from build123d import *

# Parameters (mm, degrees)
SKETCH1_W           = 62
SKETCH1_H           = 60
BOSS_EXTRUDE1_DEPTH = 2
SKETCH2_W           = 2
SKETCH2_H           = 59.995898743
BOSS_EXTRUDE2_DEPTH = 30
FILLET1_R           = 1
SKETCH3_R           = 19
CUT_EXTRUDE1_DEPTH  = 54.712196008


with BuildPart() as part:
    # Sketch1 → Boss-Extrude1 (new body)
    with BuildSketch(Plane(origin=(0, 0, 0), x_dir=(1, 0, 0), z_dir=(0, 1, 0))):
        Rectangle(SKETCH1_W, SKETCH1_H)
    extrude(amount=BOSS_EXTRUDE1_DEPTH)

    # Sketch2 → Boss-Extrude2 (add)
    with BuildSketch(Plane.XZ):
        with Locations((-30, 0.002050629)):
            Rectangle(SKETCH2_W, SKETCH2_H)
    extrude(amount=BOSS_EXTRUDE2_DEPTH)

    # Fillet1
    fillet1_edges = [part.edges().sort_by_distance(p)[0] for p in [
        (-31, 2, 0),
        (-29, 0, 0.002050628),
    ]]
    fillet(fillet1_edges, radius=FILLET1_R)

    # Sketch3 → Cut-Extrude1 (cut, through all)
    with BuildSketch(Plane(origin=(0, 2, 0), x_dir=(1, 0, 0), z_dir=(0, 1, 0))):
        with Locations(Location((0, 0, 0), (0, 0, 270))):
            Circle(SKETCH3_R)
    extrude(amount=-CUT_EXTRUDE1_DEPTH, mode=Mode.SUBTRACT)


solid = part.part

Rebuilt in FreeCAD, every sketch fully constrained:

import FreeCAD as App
import Part
import Sketcher
from FreeCAD import Vector


def edges_at(feature, points):
    """Names of the edges that pass closest to the given points."""
    edges = feature.Shape.Edges
    near = lambda p: min(range(len(edges)), key=lambda i: edges[i].distToShape(Part.Vertex(*p))[0])
    return sorted({f"Edge{near(p) + 1}" for p in points})

doc = App.newDocument("Part")
body = doc.addObject("PartDesign::Body", "Body")

# Sketch on XZ plane
sketch1 = doc.addObject("Sketcher::SketchObject", "Sketch")
body.addObject(sketch1)
sketch1.AttachmentSupport = (doc.XZ_Plane, [""])
sketch1.MapMode = "FlatFace"
sketch1.addGeometry([
    Part.LineSegment(Vector(-31, -30, 0), Vector(-31, 30, 0)),
    Part.LineSegment(Vector(-31, 30, 0), Vector(31, 30, 0)),
    Part.LineSegment(Vector(31, 30, 0), Vector(31, -30, 0)),
    Part.LineSegment(Vector(31, -30, 0), Vector(-31, -30, 0)),
], False)
sketch1.addConstraint([
    Sketcher.Constraint("Coincident", 0, 2, 1, 1),
    Sketcher.Constraint("Coincident", 1, 2, 2, 1),
    Sketcher.Constraint("Coincident", 2, 2, 3, 1),
    Sketcher.Constraint("Coincident", 3, 2, 0, 1),
    Sketcher.Constraint("Vertical", 0),
    Sketcher.Constraint("Horizontal", 1),
    Sketcher.Constraint("Vertical", 2),
    Sketcher.Constraint("Horizontal", 3),
    Sketcher.Constraint("Symmetric", 0, 2, 2, 2, -1, 1),
    Sketcher.Constraint("DistanceX", 1, 1, 1, 2, 62.0),
    Sketcher.Constraint("DistanceY", 0, 1, 0, 2, 60.0),
])
pad1 = doc.addObject("PartDesign::Pad", "Pad")
body.addObject(pad1)
pad1.Profile = sketch1
pad1.Length = 2
pad1.Reversed = True

# Sketch on XZ plane
sketch2 = doc.addObject("Sketcher::SketchObject", "Sketch001")
body.addObject(sketch2)
sketch2.AttachmentSupport = (doc.XZ_Plane, [""])
sketch2.MapMode = "FlatFace"
sketch2.addGeometry([
    Part.LineSegment(Vector(-31, 30, 0), Vector(-31, -30, 0)),
    Part.LineSegment(Vector(-31, -30, 0), Vector(-29, -30, 0)),
    Part.LineSegment(Vector(-29, -30, 0), Vector(-29, 30, 0)),
    Part.LineSegment(Vector(-29, 30, 0), Vector(-31, 30, 0)),
], False)
sketch2.addConstraint([
    Sketcher.Constraint("Coincident", 0, 2, 1, 1),
    Sketcher.Constraint("Coincident", 1, 2, 2, 1),
    Sketcher.Constraint("Coincident", 2, 2, 3, 1),
    Sketcher.Constraint("Coincident", 3, 2, 0, 1),
    Sketcher.Constraint("Vertical", 0),
    Sketcher.Constraint("Horizontal", 1),
    Sketcher.Constraint("Vertical", 2),
    Sketcher.Constraint("Horizontal", 3),
    Sketcher.Constraint("DistanceX", 1, 1, 1, 2, 2.0),
    Sketcher.Constraint("DistanceX", 0, 2, -1, 1, 31.0),
    Sketcher.Constraint("DistanceY", -1, 1, 2, 2, 30.0),
    Sketcher.Constraint("DistanceY", 0, 2, 0, 1, 59.995899),
])
pad2 = doc.addObject("PartDesign::Pad", "Pad001")
body.addObject(pad2)
pad2.Profile = sketch2
pad2.Length = 30
doc.recompute()

fillet = doc.addObject("PartDesign::Fillet", "Fillet")
body.addObject(fillet)
fillet.Base = (pad2, edges_at(pad2, [(-31, 2, 0), (-29, 0, 0.002)]))
fillet.Radius = 1

# Sketch on XZ plane
sketch3 = doc.addObject("Sketcher::SketchObject", "Sketch002")
body.addObject(sketch3)
sketch3.AttachmentSupport = (doc.XZ_Plane, [""])
sketch3.MapMode = "FlatFace"
sketch3.AttachmentOffset = App.Placement(Vector(0, 0, -2), App.Rotation())
sketch3.addGeometry(Part.Circle(Vector(0, 0, 0), Vector(0, 0, 1), 19), False)
sketch3.addConstraint([
    Sketcher.Constraint("Coincident", 0, 3, -1, 1),
    Sketcher.Constraint("Diameter", 0, 38.0),
])
pocket1 = doc.addObject("PartDesign::Pocket", "Pocket")
body.addObject(pocket1)
pocket1.Profile = sketch3
pocket1.Type = "ThroughAll"
pocket1.Reversed = True

doc.recompute()
